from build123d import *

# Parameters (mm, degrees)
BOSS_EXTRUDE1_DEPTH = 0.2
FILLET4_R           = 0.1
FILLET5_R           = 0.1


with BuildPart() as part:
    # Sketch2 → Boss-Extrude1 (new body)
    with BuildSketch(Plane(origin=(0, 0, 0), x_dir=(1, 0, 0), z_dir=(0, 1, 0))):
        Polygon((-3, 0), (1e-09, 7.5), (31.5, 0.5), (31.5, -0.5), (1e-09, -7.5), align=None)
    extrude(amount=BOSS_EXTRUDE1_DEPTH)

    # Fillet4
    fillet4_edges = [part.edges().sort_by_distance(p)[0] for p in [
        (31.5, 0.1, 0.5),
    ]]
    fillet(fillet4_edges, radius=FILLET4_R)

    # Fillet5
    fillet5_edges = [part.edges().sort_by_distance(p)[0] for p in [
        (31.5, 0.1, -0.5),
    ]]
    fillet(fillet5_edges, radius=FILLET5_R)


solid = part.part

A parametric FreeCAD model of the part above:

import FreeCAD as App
import Part
import Sketcher
Q = App.Units.Quantity


def edges_at(feature, points):
    """Names of the edges that pass closest to the given points."""
    edges = feature.Shape.Edges
    near = lambda p: min(range(len(edges)), key=lambda i: edges[i].distToShape(Part.Vertex(*p))[0])
    return sorted({f"Edge{near(p) + 1}" for p in points})


def add_polygon(sketch, points):
    """Adds a closed chain of lines whose ends are joined by coincident constraints."""
    first, n = sketch.GeometryCount, len(points)
    for a, b in zip(points, points[1:] + points[:1]):
        sketch.addGeometry(Part.LineSegment(App.Vector(*a, 0), App.Vector(*b, 0)), False)
    for i in range(n):
        sketch.addConstraint(Sketcher.Constraint("Coincident", first + i, 2, first + (i + 1) % n, 1))

doc = App.newDocument("Part")
params = doc.addObject("Spreadsheet::Sheet", "Params")
for row, (alias, value) in enumerate([
    ("sketch1_height", "1 mm"),
    ("pad1_length", "0.2 mm"),
    ("fillet_radius", "0.1 mm"),
    ("fillet2_radius", "0.1 mm"),
], start=1):
    params.set(f"A{row}", alias)
    params.set(f"B{row}", "=" + value)
    params.setAlias(f"B{row}", alias)

body = doc.addObject("PartDesign::Body", "Body")

# Sketch on XZ plane
sketch1 = doc.addObject("Sketcher::SketchObject", "Sketch")
body.addObject(sketch1)
sketch1.AttachmentSupport = (doc.XZ_Plane, [""])
sketch1.MapMode = "FlatFace"
add_polygon(sketch1, [(0, -7.5), (-3, 0), (0, 7.5), (31.5, 0.5), (31.5, -0.5)])  # lines 0-4
sketch1.addConstraint([
    Sketcher.Constraint("Vertical", 3),
    Sketcher.Constraint("Symmetric", 1, 2, 4, 2, -1, 1),
    Sketcher.Constraint("PointOnObject", 0, 2, -1),
    Sketcher.Constraint("PointOnObject", 1, 2, -2),
    Sketcher.Constraint("Equal", 2, 4),
    Sketcher.Constraint("DistanceY", 3, 2, 3, 1, Q("1 mm")),
    Sketcher.Constraint("DistanceX", 0, 2, -1, 1, Q("3 mm")),
    Sketcher.Constraint("DistanceY", 2, 2, 1, 2, Q("7 mm")),
    Sketcher.Constraint("DistanceX", -1, 1, 2, 2, Q("31.5 mm")),
])
sketch1.setExpression("Constraints[10]", "Params.sketch1_height")
pad1 = doc.addObject("PartDesign::Pad", "Pad")
body.addObject(pad1)
pad1.Profile = sketch1
pad1.setExpression("Length", "Params.pad1_length")
pad1.Reversed = True
doc.recompute()

fillet = doc.addObject("PartDesign::Fillet", "Fillet")
body.addObject(fillet)
fillet.Base = (pad1, edges_at(pad1, [(31.5, 0.1, 0.5)]))
fillet.setExpression("Radius", "Params.fillet_radius")
doc.recompute()

fillet2 = doc.addObject("PartDesign::Fillet", "Fillet001")
body.addObject(fillet2)
fillet2.Base = (fillet, edges_at(fillet, [(31.5, 0.1, -0.5)]))
fillet2.setExpression("Radius", "Params.fillet2_radius")

doc.recompute()
